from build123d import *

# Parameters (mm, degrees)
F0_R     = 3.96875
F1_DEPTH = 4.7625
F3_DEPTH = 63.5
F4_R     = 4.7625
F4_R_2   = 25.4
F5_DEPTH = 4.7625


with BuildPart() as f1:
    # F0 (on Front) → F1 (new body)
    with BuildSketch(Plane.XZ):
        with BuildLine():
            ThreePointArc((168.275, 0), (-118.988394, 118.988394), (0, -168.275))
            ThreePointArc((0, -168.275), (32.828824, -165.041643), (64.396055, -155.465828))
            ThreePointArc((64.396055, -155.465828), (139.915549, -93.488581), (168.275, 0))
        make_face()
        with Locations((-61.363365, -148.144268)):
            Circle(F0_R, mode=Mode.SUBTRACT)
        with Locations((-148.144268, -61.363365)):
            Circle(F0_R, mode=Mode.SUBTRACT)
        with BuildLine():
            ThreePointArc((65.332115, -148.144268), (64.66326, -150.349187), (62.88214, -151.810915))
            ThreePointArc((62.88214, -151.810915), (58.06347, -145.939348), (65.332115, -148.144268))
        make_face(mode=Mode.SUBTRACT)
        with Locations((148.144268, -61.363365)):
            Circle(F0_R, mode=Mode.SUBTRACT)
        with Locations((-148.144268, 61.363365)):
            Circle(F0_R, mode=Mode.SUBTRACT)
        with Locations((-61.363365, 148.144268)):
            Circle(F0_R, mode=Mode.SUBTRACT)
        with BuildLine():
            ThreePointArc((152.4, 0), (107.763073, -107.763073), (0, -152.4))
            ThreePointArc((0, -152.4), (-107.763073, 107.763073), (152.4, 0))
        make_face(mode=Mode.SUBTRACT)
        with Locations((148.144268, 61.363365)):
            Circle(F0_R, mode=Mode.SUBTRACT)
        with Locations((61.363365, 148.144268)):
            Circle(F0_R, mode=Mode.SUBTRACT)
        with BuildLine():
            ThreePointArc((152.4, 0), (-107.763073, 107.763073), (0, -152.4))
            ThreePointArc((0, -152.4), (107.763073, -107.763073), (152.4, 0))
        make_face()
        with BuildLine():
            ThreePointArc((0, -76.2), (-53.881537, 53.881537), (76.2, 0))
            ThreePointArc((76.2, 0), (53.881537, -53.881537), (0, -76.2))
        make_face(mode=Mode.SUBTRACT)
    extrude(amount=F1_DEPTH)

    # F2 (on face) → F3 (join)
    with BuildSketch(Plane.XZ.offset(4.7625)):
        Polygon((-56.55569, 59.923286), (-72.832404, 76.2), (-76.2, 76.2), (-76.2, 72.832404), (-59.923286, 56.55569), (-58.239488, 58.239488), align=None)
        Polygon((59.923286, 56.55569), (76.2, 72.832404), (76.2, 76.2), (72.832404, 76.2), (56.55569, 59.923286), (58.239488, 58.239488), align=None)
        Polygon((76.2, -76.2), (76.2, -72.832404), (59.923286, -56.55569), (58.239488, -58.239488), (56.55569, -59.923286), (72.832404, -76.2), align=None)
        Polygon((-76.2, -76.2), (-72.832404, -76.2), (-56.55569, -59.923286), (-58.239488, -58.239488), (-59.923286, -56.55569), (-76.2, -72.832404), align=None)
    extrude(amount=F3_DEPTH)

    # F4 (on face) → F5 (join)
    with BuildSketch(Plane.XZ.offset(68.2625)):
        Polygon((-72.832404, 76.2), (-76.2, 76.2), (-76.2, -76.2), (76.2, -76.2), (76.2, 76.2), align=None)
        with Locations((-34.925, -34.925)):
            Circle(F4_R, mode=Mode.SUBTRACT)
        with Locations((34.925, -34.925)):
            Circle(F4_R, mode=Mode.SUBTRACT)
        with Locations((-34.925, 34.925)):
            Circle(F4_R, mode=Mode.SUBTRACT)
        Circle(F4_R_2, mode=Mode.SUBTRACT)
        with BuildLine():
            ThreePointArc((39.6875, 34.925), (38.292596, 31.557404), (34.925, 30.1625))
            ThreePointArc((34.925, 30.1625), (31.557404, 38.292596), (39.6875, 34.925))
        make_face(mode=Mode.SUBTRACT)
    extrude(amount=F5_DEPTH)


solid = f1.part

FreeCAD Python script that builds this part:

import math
import FreeCAD as App
import Part
import Sketcher
Q = App.Units.Quantity

doc = App.newDocument("Part")
body = doc.addObject("PartDesign::Body", "Body")

# Sketch on XZ plane
sketch1 = doc.addObject("Sketcher::SketchObject", "Sketch")
body.addObject(sketch1)
sketch1.AttachmentSupport = (doc.XZ_Plane, [""])
sketch1.MapMode = "FlatFace"
sketch1.addGeometry([
    Part.ArcOfCircle(Part.Circle(App.Vector(0, 0, 0), App.Vector(0, 0, 1), 168.275), math.radians(0), math.radians(270)),  # 0
    Part.ArcOfCircle(Part.Circle(App.Vector(0, -0.000001, 0), App.Vector(0, 0, 1), 168.274999), math.radians(-90), math.radians(-67.5)),  # 1
    Part.ArcOfCircle(Part.Circle(App.Vector(0.000001, 0, 0), App.Vector(0, 0, 1), 168.274999), math.radians(-67.5), math.radians(0)),  # 2
    Part.Circle(App.Vector(-61.363365, -148.144268, 0), App.Vector(0, 0, 1), 3.96875),  # 3
    Part.Circle(App.Vector(-148.144268, -61.363365, 0), App.Vector(0, 0, 1), 3.96875),  # 4
    Part.ArcOfCircle(Part.Circle(App.Vector(61.363365, -148.144268, 0), App.Vector(0, 0, 1), 3.96875), math.radians(0), math.radians(292.500004)),  # 5
    Part.ArcOfCircle(Part.Circle(App.Vector(61.363363, -148.144267, 0), App.Vector(0, 0, 1), 3.968752), math.radians(-67.499983), math.radians(-0.000012)),  # 6
    Part.Circle(App.Vector(148.144268, -61.363365, 0), App.Vector(0, 0, 1), 3.96875),  # 7
    Part.Circle(App.Vector(-148.144268, 61.363365, 0), App.Vector(0, 0, 1), 3.96875),  # 8
    Part.ArcOfCircle(Part.Circle(App.Vector(0.000001, -0.000001, 0), App.Vector(0, 0, 1), 76.199999), math.radians(-90.000001), math.radians(0.000001)),  # 9
    Part.ArcOfCircle(Part.Circle(App.Vector(0, 0, 0), App.Vector(0, 0, 1), 76.2), math.radians(0), math.radians(270)),  # 10
    Part.Circle(App.Vector(-61.363365, 148.144268, 0), App.Vector(0, 0, 1), 3.96875),  # 11
    Part.Circle(App.Vector(148.144268, 61.363365, 0), App.Vector(0, 0, 1), 3.96875),  # 12
    Part.Circle(App.Vector(61.363365, 148.144268, 0), App.Vector(0, 0, 1), 3.96875),  # 13
], False)
sketch1.addConstraint([
    Sketcher.Constraint("Tangent", 0, 2, 1, 1),
    Sketcher.Constraint("Tangent", 1, 2, 2, 1),
    Sketcher.Constraint("Coincident", 2, 2, 0, 1),
    Sketcher.Constraint("Tangent", 5, 1, 6, 2),
    Sketcher.Constraint("Coincident", 6, 1, 5, 2),
    Sketcher.Constraint("Tangent", 9, 1, 10, 2),
    Sketcher.Constraint("Coincident", 10, 1, 9, 2),
    Sketcher.Constraint("Coincident", 0, 3, -1, 1),
    Sketcher.Constraint("Coincident", 9, 3, -1, 1),
    Sketcher.Constraint("Equal", 0, 1),
    Sketcher.Constraint("Equal", 3, 4),
    Sketcher.Constraint("Equal", 4, 5),
    Sketcher.Constraint("Equal", 6, 7),
    Sketcher.Constraint("Equal", 7, 8),
    Sketcher.Constraint("Equal", 8, 11),
    Sketcher.Constraint("Equal", 11, 12),
    Sketcher.Constraint("Equal", 12, 13),
    Sketcher.Constraint("Symmetric", 7, 3, 8, 3, -1, 1),
    Sketcher.Constraint("Symmetric", 5, 3, 11, 3, -1, 1),
    Sketcher.Constraint("Symmetric", 4, 3, 12, 3, -1, 1),
    Sketcher.Constraint("Symmetric", 3, 3, 13, 3, -1, 1),
    Sketcher.Constraint("Symmetric", 3, 3, 5, 3, -2),
    Sketcher.Constraint("Symmetric", 4, 3, 7, 3, -2),
    Sketcher.Constraint("PointOnObject", 0, 2, -2),
    Sketcher.Constraint("PointOnObject", 2, 2, -1),
    Sketcher.Constraint("PointOnObject", 9, 1, -2),
    Sketcher.Constraint("PointOnObject", 10, 1, -1),
    Sketcher.Constraint("Horizontal", 6, 3, 5, 1),
    Sketcher.Constraint("Radius", 9, Q("3 in")),
    Sketcher.Constraint("Diameter", 3, Q("0.3125 in")),
    Sketcher.Constraint("Radius", 0, Q("6.625 in")),
    Sketcher.Constraint("DistanceY", 3, 3, -1, 1, Q("148.144268 mm")),
    Sketcher.Constraint("DistanceX", 4, 3, -1, 1, Q("148.144268 mm")),
    Sketcher.Constraint("DistanceY", 1, 2, -1, 1, Q("155.465828 mm")),
    Sketcher.Constraint("DistanceX", -1, 1, 6, 1, Q("62.88214 mm")),
    Sketcher.Constraint("DistanceX", 3, 3, 5, 3, Q("122.72673 mm")),
    Sketcher.Constraint("DistanceY", 4, 3, 8, 3, Q("122.72673 mm")),
])
pad1 = doc.addObject("PartDesign::Pad", "Pad")
body.addObject(pad1)
pad1.Profile = sketch1
pad1.Length = Q("0.1875 in")

# Sketch on XZ plane
sketch2 = doc.addObject("Sketcher::SketchObject", "Sketch001")
body.addObject(sketch2)
sketch2.AttachmentSupport = (doc.XZ_Plane, [""])
sketch2.MapMode = "FlatFace"
sketch2.AttachmentOffset = App.Placement(App.Vector(0, 0, 0.1875 * 25.4), App.Rotation())
sketch2.addGeometry([
    Part.LineSegment(App.Vector(-56.55569, 59.923286, 0), App.Vector(-72.832404, 76.2, 0)),  # 0
    Part.LineSegment(App.Vector(-72.832404, 76.2, 0), App.Vector(-76.2, 76.2, 0)),  # 1
    Part.LineSegment(App.Vector(-76.2, 76.2, 0), App.Vector(-76.2, 72.832404, 0)),  # 2
    Part.LineSegment(App.Vector(-76.2, 72.832404, 0), App.Vector(-59.923286, 56.55569, 0)),  # 3
    Part.LineSegment(App.Vector(-59.923286, 56.55569, 0), App.Vector(-56.55569, 59.923286, 0)),  # 4
    Part.LineSegment(App.Vector(59.923286, 56.55569, 0), App.Vector(76.2, 72.832404, 0)),  # 5
    Part.LineSegment(App.Vector(76.2, 72.832404, 0), App.Vector(76.2, 76.2, 0)),  # 6
    Part.LineSegment(App.Vector(76.2, 76.2, 0), App.Vector(72.832404, 76.2, 0)),  # 7
    Part.LineSegment(App.Vector(72.832404, 76.2, 0), App.Vector(56.55569, 59.923286, 0)),  # 8
    Part.LineSegment(App.Vector(56.55569, 59.923286, 0), App.Vector(59.923286, 56.55569, 0)),  # 9
    Part.LineSegment(App.Vector(76.2, -76.2, 0), App.Vector(76.2, -72.832404, 0)),  # 10
    Part.LineSegment(App.Vector(76.2, -72.832404, 0), App.Vector(59.923286, -56.55569, 0)),  # 11
    Part.LineSegment(App.Vector(59.923286, -56.55569, 0), App.Vector(56.55569, -59.923286, 0)),  # 12
    Part.LineSegment(App.Vector(56.55569, -59.923286, 0), App.Vector(72.832404, -76.2, 0)),  # 13
    Part.LineSegment(App.Vector(72.832404, -76.2, 0), App.Vector(76.2, -76.2, 0)),  # 14
    Part.LineSegment(App.Vector(-76.2, -76.2, 0), App.Vector(-72.832404, -76.2, 0)),  # 15
    Part.LineSegment(App.Vector(-72.832404, -76.2, 0), App.Vector(-56.55569, -59.923286, 0)),  # 16
    Part.LineSegment(App.Vector(-56.55569, -59.923286, 0), App.Vector(-59.923286, -56.55569, 0)),  # 17
    Part.LineSegment(App.Vector(-59.923286, -56.55569, 0), App.Vector(-76.2, -72.832404, 0)),  # 18
    Part.LineSegment(App.Vector(-76.2, -72.832404, 0), App.Vector(-76.2, -76.2, 0)),  # 19
], False)
sketch2.addConstraint([
    Sketcher.Constraint("Coincident", 0, 2, 1, 1),
    Sketcher.Constraint("Coincident", 1, 2, 2, 1),
    Sketcher.Constraint("Coincident", 2, 2, 3, 1),
    Sketcher.Constraint("Coincident", 3, 2, 4, 1),
    Sketcher.Constraint("Coincident", 4, 2, 0, 1),
    Sketcher.Constraint("Coincident", 5, 2, 6, 1),
    Sketcher.Constraint("Coincident", 6, 2, 7, 1),
    Sketcher.Constraint("Coincident", 7, 2, 8, 1),
    Sketcher.Constraint("Coincident", 8, 2, 9, 1),
    Sketcher.Constraint("Coincident", 9, 2, 5, 1),
    Sketcher.Constraint("Coincident", 10, 2, 11, 1),
    Sketcher.Constraint("Coincident", 11, 2, 12, 1),
    Sketcher.Constraint("Coincident", 12, 2, 13, 1),
    Sketcher.Constraint("Coincident", 13, 2, 14, 1),
    Sketcher.Constraint("Coincident", 14, 2, 10, 1),
    Sketcher.Constraint("Coincident", 15, 2, 16, 1),
    Sketcher.Constraint("Coincident", 16, 2, 17, 1),
    Sketcher.Constraint("Coincident", 17, 2, 18, 1),
    Sketcher.Constraint("Coincident", 18, 2, 19, 1),
    Sketcher.Constraint("Coincident", 19, 2, 15, 1),
    Sketcher.Constraint("Horizontal", 1),
    Sketcher.Constraint("Vertical", 2),
    Sketcher.Constraint("Vertical", 6),
    Sketcher.Constraint("Horizontal", 7),
    Sketcher.Constraint("Vertical", 10),
    Sketcher.Constraint("Horizontal", 14),
    Sketcher.Constraint("Horizontal", 15),
    Sketcher.Constraint("Vertical", 19),
    Sketcher.Constraint("Symmetric", 2, 2, 10, 2, -1, 1),
    Sketcher.Constraint("Symmetric", 3, 2, 11, 2, -1, 1),
    Sketcher.Constraint("Symmetric", 4, 2, 12, 2, -1, 1),
    Sketcher.Constraint("Symmetric", 0, 2, 13, 2, -1, 1),
    Sketcher.Constraint("Symmetric", 7, 2, 15, 2, -1, 1),
    Sketcher.Constraint("Symmetric", 8, 2, 16, 2, -1, 1),
    Sketcher.Constraint("Symmetric", 9, 2, 17, 2, -1, 1),
    Sketcher.Constraint("Symmetric", 5, 2, 18, 2, -1, 1),
    Sketcher.Constraint("Symmetric", 2, 2, 5, 2, -2),
    Sketcher.Constraint("Symmetric", 0, 2, 7, 2, -2),
    Sketcher.Constraint("Symmetric", 4, 2, 8, 2, -2),
    Sketcher.Constraint("Symmetric", 3, 2, 9, 2, -2),
    Sketcher.Constraint("Parallel", 0, 3),
    Sketcher.Constraint("Perpendicular", 3, 4),
    Sketcher.Constraint("Parallel", 4, 5),
    Sketcher.Constraint("Equal", 15, 2),
    Sketcher.Constraint("DistanceY", -1, 1, 0, 2, Q("3 in")),
    Sketcher.Constraint("DistanceX", 1, 2, -1, 1, Q("3 in")),
    Sketcher.Constraint("Distance", 0, Q("0.90625 in")),
    Sketcher.Constraint("Distance", 4, Q("0.1875 in")),
])
pad2 = doc.addObject("PartDesign::Pad", "Pad001")
body.addObject(pad2)
pad2.Profile = sketch2
pad2.Length = Q("2.5 in")

# Sketch on XZ plane
sketch3 = doc.addObject("Sketcher::SketchObject", "Sketch002")
body.addObject(sketch3)
sketch3.AttachmentSupport = (doc.XZ_Plane, [""])
sketch3.MapMode = "FlatFace"
sketch3.AttachmentOffset = App.Placement(App.Vector(0, 0, 2.6875 * 25.4), App.Rotation())
sketch3.addGeometry([
    Part.LineSegment(App.Vector(-76.2, 76.2, 0), App.Vector(-76.2, -76.2, 0)),  # 0
    Part.LineSegment(App.Vector(-76.2, -76.2, 0), App.Vector(76.2, -76.2, 0)),  # 1
    Part.LineSegment(App.Vector(76.2, -76.2, 0), App.Vector(76.2, 76.2, 0)),  # 2
    Part.LineSegment(App.Vector(76.2, 76.2, 0), App.Vector(-76.2, 76.2, 0)),  # 3
    Part.Circle(App.Vector(-34.925, -34.925, 0), App.Vector(0, 0, 1), 4.7625),  # 4
    Part.Circle(App.Vector(34.925, -34.925, 0), App.Vector(0, 0, 1), 4.7625),  # 5
    Part.Circle(App.Vector(-34.925, 34.925, 0), App.Vector(0, 0, 1), 4.7625),  # 6
    Part.Circle(App.Vector(0, 0, 0), App.Vector(0, 0, 1), 25.4),  # 7
    Part.ArcOfCircle(Part.Circle(App.Vector(34.925, 34.925, 0), App.Vector(0, 0, 1), 4.7625), math.radians(0), math.radians(270)),  # 8
    Part.ArcOfCircle(Part.Circle(App.Vector(34.925, 34.925, 0), App.Vector(0, 0, 1), 4.7625), math.radians(-89.999998), math.radians(-0.000002)),  # 9
], False)
sketch3.addConstraint([
    Sketcher.Constraint("Coincident", 0, 2, 1, 1),
    Sketcher.Constraint("Coincident", 1, 2, 2, 1),
    Sketcher.Constraint("Coincident", 2, 2, 3, 1),
    Sketcher.Constraint("Coincident", 3, 2, 0, 1),
    Sketcher.Constraint("Tangent", 8, 1, 9, 2),
    Sketcher.Constraint("Coincident", 9, 1, 8, 2),
    Sketcher.Constraint("Vertical", 0),
    Sketcher.Constraint("Horizontal", 1),
    Sketcher.Constraint("Vertical", 2),
    Sketcher.Constraint("Horizontal", 3),
    Sketcher.Constraint("Coincident", 7, 3, -1, 1),
    Sketcher.Constraint("Equal", 4, 5),
    Sketcher.Constraint("Equal", 5, 6),
    Sketcher.Constraint("Equal", 6, 8),
    Sketcher.Constraint("Symmetric", 5, 3, 6, 3, -1, 1),
    Sketcher.Constraint("Symmetric", 4, 3, 8, 3, -1, 1),
    Sketcher.Constraint("Symmetric", 0, 2, 2, 2, -1, 1),
    Sketcher.Constraint("Symmetric", 4, 3, 5, 3, -2),
    Sketcher.Constraint("Horizontal", 9, 3, 8, 1),
    Sketcher.Constraint("Vertical", 8, 3, 9, 1),
    Sketcher.Constraint("Equal", 3, 0),
    Sketcher.Constraint("Diameter", 7, Q("2 in")),
    Sketcher.Constraint("DistanceX", 1, 1, 1, 2, Q("6 in")),
    Sketcher.Constraint("Diameter", 4, Q("0.375 in")),
    Sketcher.Constraint("DistanceX", 4, 3, 5, 3, Q("2.75 in")),
    Sketcher.Constraint("DistanceY", 4, 3, 6, 3, Q("2.75 in")),
])
pad3 = doc.addObject("PartDesign::Pad", "Pad002")
body.addObject(pad3)
pad3.Profile = sketch3
pad3.Length = Q("0.1875 in")

doc.recompute()
